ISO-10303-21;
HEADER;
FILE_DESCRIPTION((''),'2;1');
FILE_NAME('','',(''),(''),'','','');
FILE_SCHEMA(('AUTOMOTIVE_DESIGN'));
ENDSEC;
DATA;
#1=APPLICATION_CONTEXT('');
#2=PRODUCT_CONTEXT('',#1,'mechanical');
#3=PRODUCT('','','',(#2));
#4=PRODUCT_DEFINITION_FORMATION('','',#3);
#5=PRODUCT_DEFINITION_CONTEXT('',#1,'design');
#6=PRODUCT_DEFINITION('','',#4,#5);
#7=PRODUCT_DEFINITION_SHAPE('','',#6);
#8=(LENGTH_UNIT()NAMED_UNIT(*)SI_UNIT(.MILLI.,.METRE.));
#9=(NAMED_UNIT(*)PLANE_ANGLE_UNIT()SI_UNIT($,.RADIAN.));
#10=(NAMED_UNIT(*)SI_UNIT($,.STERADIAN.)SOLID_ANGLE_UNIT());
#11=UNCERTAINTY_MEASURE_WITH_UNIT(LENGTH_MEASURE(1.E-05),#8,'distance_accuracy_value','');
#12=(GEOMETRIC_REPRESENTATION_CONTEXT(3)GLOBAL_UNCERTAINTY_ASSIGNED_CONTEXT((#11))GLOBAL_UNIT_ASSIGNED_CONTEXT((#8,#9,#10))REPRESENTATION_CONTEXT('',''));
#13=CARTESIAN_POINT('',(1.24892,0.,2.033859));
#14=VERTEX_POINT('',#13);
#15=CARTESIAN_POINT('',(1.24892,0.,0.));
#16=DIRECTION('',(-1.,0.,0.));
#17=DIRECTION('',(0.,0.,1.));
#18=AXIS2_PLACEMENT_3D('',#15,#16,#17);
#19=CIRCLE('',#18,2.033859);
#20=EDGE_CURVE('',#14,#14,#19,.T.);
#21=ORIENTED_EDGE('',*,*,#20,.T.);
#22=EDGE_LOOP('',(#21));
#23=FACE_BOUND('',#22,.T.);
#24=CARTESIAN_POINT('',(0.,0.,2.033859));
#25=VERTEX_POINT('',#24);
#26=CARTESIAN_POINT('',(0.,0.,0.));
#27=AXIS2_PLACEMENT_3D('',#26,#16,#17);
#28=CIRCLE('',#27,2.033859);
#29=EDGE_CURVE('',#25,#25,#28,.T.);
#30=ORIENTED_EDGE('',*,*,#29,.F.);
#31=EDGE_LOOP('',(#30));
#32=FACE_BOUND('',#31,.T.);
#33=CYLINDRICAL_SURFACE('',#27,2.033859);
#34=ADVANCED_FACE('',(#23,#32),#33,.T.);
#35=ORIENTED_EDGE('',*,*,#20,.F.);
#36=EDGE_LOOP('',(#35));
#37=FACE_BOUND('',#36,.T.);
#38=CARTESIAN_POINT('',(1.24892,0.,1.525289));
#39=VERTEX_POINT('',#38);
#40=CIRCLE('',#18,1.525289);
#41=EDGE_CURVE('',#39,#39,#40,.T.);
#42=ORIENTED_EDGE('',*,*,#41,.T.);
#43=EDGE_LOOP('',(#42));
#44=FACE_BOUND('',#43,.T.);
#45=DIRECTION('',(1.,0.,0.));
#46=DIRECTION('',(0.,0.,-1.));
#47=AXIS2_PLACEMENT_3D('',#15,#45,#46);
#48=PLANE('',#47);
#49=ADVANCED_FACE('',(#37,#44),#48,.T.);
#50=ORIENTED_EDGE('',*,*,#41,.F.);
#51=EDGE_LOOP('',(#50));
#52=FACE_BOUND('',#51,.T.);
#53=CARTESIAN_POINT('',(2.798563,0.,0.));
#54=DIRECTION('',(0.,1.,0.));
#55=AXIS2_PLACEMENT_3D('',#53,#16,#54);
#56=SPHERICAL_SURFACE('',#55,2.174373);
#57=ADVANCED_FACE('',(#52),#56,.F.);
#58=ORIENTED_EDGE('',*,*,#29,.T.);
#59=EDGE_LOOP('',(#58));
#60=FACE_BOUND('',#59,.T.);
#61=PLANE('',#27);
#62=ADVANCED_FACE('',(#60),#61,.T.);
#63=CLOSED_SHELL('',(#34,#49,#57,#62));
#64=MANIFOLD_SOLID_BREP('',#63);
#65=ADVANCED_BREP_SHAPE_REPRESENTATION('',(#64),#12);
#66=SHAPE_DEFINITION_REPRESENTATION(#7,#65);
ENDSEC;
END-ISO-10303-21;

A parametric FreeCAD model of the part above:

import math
import FreeCAD as App
import Part
import Sketcher
from FreeCAD import Vector

doc = App.newDocument("Part")
body = doc.addObject("PartDesign::Body", "Body")

# Sketch on XY plane
sketch1 = body.newObject("Sketcher::SketchObject", "Sketch")
sketch1.AttachmentSupport = (doc.getObject("XY_Plane"), [""])
sketch1.MapMode = "FlatFace"
sketch1.addGeometry([
    Part.LineSegment(Vector(0, 2.033859, 0), Vector(0, 0, 0)),  # 0
    Part.LineSegment(Vector(0, 0, 0), Vector(0.62419, 0, 0)),  # 1
    Part.ArcOfCircle(Part.Circle(Vector(2.798563, 0, 0), Vector(0, 0, 1), 2.174373), math.radians(135.453776), math.radians(180)),  # 2
    Part.LineSegment(Vector(1.24892, 1.525289, 0), Vector(1.24892, 2.033859, 0)),  # 3
    Part.LineSegment(Vector(1.24892, 2.033859, 0), Vector(0, 2.033859, 0)),  # 4
], False)
sketch1.addConstraint([
    Sketcher.Constraint("Coincident", 0, 2, 1, 1),
    Sketcher.Constraint("Coincident", 1, 2, 2, 2),
    Sketcher.Constraint("Coincident", 2, 1, 3, 1),
    Sketcher.Constraint("Coincident", 3, 2, 4, 1),
    Sketcher.Constraint("Coincident", 4, 2, 0, 1),
    Sketcher.Constraint("Vertical", 0),
    Sketcher.Constraint("Horizontal", 1),
    Sketcher.Constraint("Vertical", 3),
    Sketcher.Constraint("Horizontal", 4),
    Sketcher.Constraint("Coincident", 0, 2, -1, 1),
    Sketcher.Constraint("PointOnObject", 2, 3, -1),
    Sketcher.Constraint("Radius", 2, 2.174373),
    Sketcher.Constraint("DistanceX", 1, 1, 1, 2, 0.62419),
    Sketcher.Constraint("DistanceX", 4, 2, 4, 1, 1.24892),
    Sketcher.Constraint("DistanceY", 0, 2, 0, 1, 2.033859),
])
revolution = body.newObject("PartDesign::Revolution", "Revolution")
revolution.Profile = sketch1
revolution.ReferenceAxis = (sketch1, ["H_Axis"])
revolution.Angle = 360

doc.recompute()
